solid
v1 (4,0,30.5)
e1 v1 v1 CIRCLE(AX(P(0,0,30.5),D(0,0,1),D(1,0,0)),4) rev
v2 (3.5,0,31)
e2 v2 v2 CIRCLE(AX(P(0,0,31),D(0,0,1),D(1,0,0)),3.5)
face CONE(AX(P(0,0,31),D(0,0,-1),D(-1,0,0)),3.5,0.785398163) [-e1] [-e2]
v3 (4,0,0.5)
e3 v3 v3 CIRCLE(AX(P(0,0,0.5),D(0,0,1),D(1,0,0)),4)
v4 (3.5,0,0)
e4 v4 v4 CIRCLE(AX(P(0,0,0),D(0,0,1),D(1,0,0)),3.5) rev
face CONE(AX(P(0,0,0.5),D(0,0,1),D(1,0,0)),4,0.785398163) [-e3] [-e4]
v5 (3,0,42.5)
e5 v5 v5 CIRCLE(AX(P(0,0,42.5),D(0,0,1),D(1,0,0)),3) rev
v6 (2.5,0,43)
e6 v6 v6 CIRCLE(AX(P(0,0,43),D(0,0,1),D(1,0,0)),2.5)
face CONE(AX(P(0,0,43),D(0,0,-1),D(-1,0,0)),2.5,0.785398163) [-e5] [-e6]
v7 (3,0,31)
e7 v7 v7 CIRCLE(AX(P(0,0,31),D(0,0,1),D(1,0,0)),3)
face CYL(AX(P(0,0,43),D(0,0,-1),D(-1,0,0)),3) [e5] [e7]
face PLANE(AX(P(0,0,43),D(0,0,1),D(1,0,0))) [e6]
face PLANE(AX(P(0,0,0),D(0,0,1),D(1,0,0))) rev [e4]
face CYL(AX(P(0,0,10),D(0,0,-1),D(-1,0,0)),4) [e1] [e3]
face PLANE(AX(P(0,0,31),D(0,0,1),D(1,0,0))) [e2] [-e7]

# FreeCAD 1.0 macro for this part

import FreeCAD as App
import Part
import Sketcher

V = App.Vector
Q = App.Units.Quantity


def edges_at(feature, points):
    """Names of the edges that pass closest to the given points."""
    edges = feature.Shape.Edges
    near = lambda p: min(range(len(edges)), key=lambda i: edges[i].distToShape(Part.Vertex(*p))[0])
    return sorted({f"Edge{near(p) + 1}" for p in points})


def add_polygon(sketch, points):
    """Adds a closed chain of lines whose ends are joined by coincident constraints."""
    first, n = sketch.GeometryCount, len(points)
    for a, b in zip(points, points[1:] + points[:1]):
        sketch.addGeometry(Part.LineSegment(App.Vector(*a, 0), App.Vector(*b, 0)), False)
    for i in range(n):
        sketch.addConstraint(Sketcher.Constraint("Coincident", first + i, 2, first + (i + 1) % n, 1))

doc = App.newDocument("Part")
body = doc.addObject("PartDesign::Body", "Body")

# Sketch on XY plane
sketch1 = body.newObject("Sketcher::SketchObject", "Sketch")
sketch1.AttachmentSupport = (doc.getObject("XY_Plane"), [""])
sketch1.MapMode = "FlatFace"
sketch1.addGeometry(Part.Circle(V(0, 0, 0), V(0, 0, 1), 4), False)
sketch1.addConstraint(Sketcher.Constraint("Coincident", 0, 3, -1, 1))
sketch1.addConstraint(Sketcher.Constraint("Diameter", 0, 8.0))
pad1 = body.newObject("PartDesign::Pad", "Pad")
pad1.Profile = sketch1
pad1.Length = 10

# Sketch on XY plane
sketch2 = body.newObject("Sketcher::SketchObject", "Sketch001")
sketch2.AttachmentSupport = (doc.getObject("XY_Plane"), [""])
sketch2.MapMode = "FlatFace"
sketch2.AttachmentOffset = App.Placement(V(0, 0, 10), App.Rotation())
add_polygon(sketch2, [(10, 0), (5, 8.660254), (-5, 8.660254), (-10, 0), (-5, -8.660254), (5, -8.660254)])  # lines 0-5
sketch2.addConstraint(Sketcher.Constraint("Horizontal", 1))
sketch2.addConstraint(Sketcher.Constraint("Horizontal", 4))
sketch2.addConstraint(Sketcher.Constraint("Symmetric", 0, 2, 3, 2, -1, 1))
sketch2.addConstraint(Sketcher.Constraint("Symmetric", 2, 2, 5, 2, -1, 1))
sketch2.addConstraint(Sketcher.Constraint("PointOnObject", 2, 2, -1))
sketch2.addConstraint(Sketcher.Constraint("Parallel", 2, 5))
sketch2.addConstraint(Sketcher.Constraint("Vertical", 1, 2, 3, 2))
sketch2.addConstraint(Sketcher.Constraint("DistanceX", 1, 2, 1, 1, 10.0))
sketch2.addConstraint(Sketcher.Constraint("Angle", 0, Q("120 deg")))
sketch2.addConstraint(Sketcher.Constraint("Distance", 0, 10.0))
pad2 = body.newObject("PartDesign::Pad", "Pad001")
pad2.Profile = sketch2
pad2.Length = 8

# Sketch on XY plane
sketch3 = body.newObject("Sketcher::SketchObject", "Sketch002")
sketch3.AttachmentSupport = (doc.getObject("XY_Plane"), [""])
sketch3.MapMode = "FlatFace"
sketch3.AttachmentOffset = App.Placement(V(0, 0, 18), App.Rotation())
sketch3.addGeometry(Part.Circle(V(0, 0, 0), V(0, 0, 1), 4), False)
sketch3.addConstraint(Sketcher.Constraint("Coincident", 0, 3, -1, 1))
sketch3.addConstraint(Sketcher.Constraint("Diameter", 0, 8.0))
pad3 = body.newObject("PartDesign::Pad", "Pad002")
pad3.Profile = sketch3
pad3.Length = 13

# Sketch on XY plane
sketch4 = body.newObject("Sketcher::SketchObject", "Sketch003")
sketch4.AttachmentSupport = (doc.getObject("XY_Plane"), [""])
sketch4.MapMode = "FlatFace"
sketch4.AttachmentOffset = App.Placement(V(0, 0, 31), App.Rotation())
sketch4.addGeometry(Part.Circle(V(0, 0, 0), V(0, 0, 1), 3), False)
sketch4.addConstraint(Sketcher.Constraint("Coincident", 0, 3, -1, 1))
sketch4.addConstraint(Sketcher.Constraint("Diameter", 0, 6.0))
pad4 = body.newObject("PartDesign::Pad", "Pad003")
pad4.Profile = sketch4
pad4.Length = 12
doc.recompute()

chamfer = body.newObject("PartDesign::Chamfer", "Chamfer")
chamfer.Base = (pad4, edges_at(pad4, [(-4, 0, 0), (-4, 0, 31), (-3, 0, 43)]))
chamfer.Size = 0.5

# Sketch on XY plane
sketch5 = body.newObject("Sketcher::SketchObject", "Sketch004")
sketch5.AttachmentSupport = (doc.getObject("XY_Plane"), [""])
sketch5.MapMode = "FlatFace"
sketch5.AttachmentOffset = App.Placement(V(0, 0, 10), App.Rotation())
sketch5.addGeometry(Part.Circle(V(0, 0, 0), V(0, 0, 1), 13.064187), False)
sketch5.addGeometry(Part.Circle(V(0, 0, 0), V(0, 0, 1), 4), False)
sketch5.addConstraint(Sketcher.Constraint("Coincident", 0, 3, -1, 1))
sketch5.addConstraint(Sketcher.Constraint("Coincident", 1, 3, -1, 1))
sketch5.addConstraint(Sketcher.Constraint("Diameter", 1, 8.0))
sketch5.addConstraint(Sketcher.Constraint("Diameter", 0, 26.128374))
pocket1 = body.newObject("PartDesign::Pocket", "Pocket")
pocket1.Profile = sketch5
pocket1.Length = 10
pocket1.Reversed = True

doc.recompute()
